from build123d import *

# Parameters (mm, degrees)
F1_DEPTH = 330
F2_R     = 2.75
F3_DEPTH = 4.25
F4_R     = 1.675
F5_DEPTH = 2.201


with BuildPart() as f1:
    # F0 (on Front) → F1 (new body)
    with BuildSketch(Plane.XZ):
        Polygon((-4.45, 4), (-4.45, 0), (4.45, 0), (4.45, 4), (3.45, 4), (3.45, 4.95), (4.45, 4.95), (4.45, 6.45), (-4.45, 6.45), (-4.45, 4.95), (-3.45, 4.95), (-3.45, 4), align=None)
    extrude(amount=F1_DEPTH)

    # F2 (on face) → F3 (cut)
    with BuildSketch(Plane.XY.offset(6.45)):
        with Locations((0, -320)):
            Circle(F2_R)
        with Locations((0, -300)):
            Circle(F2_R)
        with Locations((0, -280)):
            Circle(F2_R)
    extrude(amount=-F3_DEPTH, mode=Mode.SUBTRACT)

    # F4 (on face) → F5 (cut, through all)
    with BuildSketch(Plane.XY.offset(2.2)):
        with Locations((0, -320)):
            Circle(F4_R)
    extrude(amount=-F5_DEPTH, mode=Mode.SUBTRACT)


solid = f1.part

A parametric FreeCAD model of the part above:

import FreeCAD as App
import Part
import Sketcher
Q = App.Units.Quantity


def add_polygon(sketch, points):
    """Adds a closed chain of lines whose ends are joined by coincident constraints."""
    first, n = sketch.GeometryCount, len(points)
    for a, b in zip(points, points[1:] + points[:1]):
        sketch.addGeometry(Part.LineSegment(App.Vector(*a, 0), App.Vector(*b, 0)), False)
    for i in range(n):
        sketch.addConstraint(Sketcher.Constraint("Coincident", first + i, 2, first + (i + 1) % n, 1))

doc = App.newDocument("Part")
body = doc.addObject("PartDesign::Body", "Body")

# Sketch on XZ plane
sketch1 = doc.addObject("Sketcher::SketchObject", "Sketch")
body.addObject(sketch1)
sketch1.AttachmentSupport = (doc.XZ_Plane, [""])
sketch1.MapMode = "FlatFace"
add_polygon(sketch1, [(-4.5, 4), (-4.5, 0), (4.5, 0), (4.5, 4), (3.5, 4), (3.5, 5), (4.5, 5), (4.5, 6.5), (-4.5, 6.5), (-4.5, 5), (-3.5, 5), (-3.5, 4)])  # lines 0-11
sketch1.addConstraint([
    Sketcher.Constraint("Vertical", 0),
    Sketcher.Constraint("Horizontal", 1),
    Sketcher.Constraint("Vertical", 2),
    Sketcher.Constraint("Horizontal", 3),
    Sketcher.Constraint("Vertical", 4),
    Sketcher.Constraint("Horizontal", 5),
    Sketcher.Constraint("Vertical", 6),
    Sketcher.Constraint("Horizontal", 7),
    Sketcher.Constraint("Vertical", 8),
    Sketcher.Constraint("Horizontal", 9),
    Sketcher.Constraint("Vertical", 10),
    Sketcher.Constraint("Horizontal", 11),
    Sketcher.Constraint("Symmetric", 0, 2, 1, 2, -1, 1),
    Sketcher.Constraint("Symmetric", 5, 2, 8, 2, -2),
    Sketcher.Constraint("Symmetric", 3, 2, 10, 2, -2),
    Sketcher.Constraint("Vertical", 2, 2, 5, 2),
    Sketcher.Constraint("DistanceX", 3, 2, 3, 1, Q("1 mm")),
    Sketcher.Constraint("DistanceY", 0, 2, 0, 1, Q("4 mm")),
    Sketcher.Constraint("DistanceX", 1, 1, 1, 2, Q("8.9 mm")),
    Sketcher.Constraint("DistanceY", 6, 1, 6, 2, Q("1.5 mm")),
    Sketcher.Constraint("DistanceY", 4, 1, 4, 2, Q("0.95 mm")),
])
pad1 = doc.addObject("PartDesign::Pad", "Pad")
body.addObject(pad1)
pad1.Profile = sketch1
pad1.Length = 330

# Sketch on XY plane
sketch2 = doc.addObject("Sketcher::SketchObject", "Sketch001")
body.addObject(sketch2)
sketch2.AttachmentSupport = (doc.XY_Plane, [""])
sketch2.MapMode = "FlatFace"
sketch2.AttachmentOffset = App.Placement(App.Vector(0, 0, 6.45), App.Rotation())
sketch2.addGeometry([
    Part.Circle(App.Vector(0, -320, 0), App.Vector(0, 0, 1), 2.8),
    Part.Circle(App.Vector(0, -300, 0), App.Vector(0, 0, 1), 2.8),
    Part.Circle(App.Vector(0, -280, 0), App.Vector(0, 0, 1), 2.8),
], False)
sketch2.addConstraint([
    Sketcher.Constraint("Equal", 0, 1),
    Sketcher.Constraint("Equal", 1, 2),
    Sketcher.Constraint("PointOnObject", 0, 3, -2),
    Sketcher.Constraint("PointOnObject", 1, 3, -2),
    Sketcher.Constraint("PointOnObject", 2, 3, -2),
    Sketcher.Constraint("Diameter", 0, Q("5.5 mm")),
    Sketcher.Constraint("DistanceY", 0, 3, -1, 1, Q("320 mm")),
    Sketcher.Constraint("DistanceY", 1, 3, -1, 1, Q("300 mm")),
    Sketcher.Constraint("DistanceY", 2, 3, -1, 1, Q("280 mm")),
])
pocket1 = doc.addObject("PartDesign::Pocket", "Pocket")
body.addObject(pocket1)
pocket1.Profile = sketch2
pocket1.Length = 4.25

# Sketch on XY plane
sketch3 = doc.addObject("Sketcher::SketchObject", "Sketch002")
body.addObject(sketch3)
sketch3.AttachmentSupport = (doc.XY_Plane, [""])
sketch3.MapMode = "FlatFace"
sketch3.AttachmentOffset = App.Placement(App.Vector(0, 0, 2.2), App.Rotation())
sketch3.addGeometry(Part.Circle(App.Vector(0, -320, 0), App.Vector(0, 0, 1), 1.7), False)
sketch3.addConstraint([
    Sketcher.Constraint("PointOnObject", 0, 3, -2),
    Sketcher.Constraint("Diameter", 0, Q("3.35 mm")),
    Sketcher.Constraint("DistanceY", 0, 3, -1, 1, Q("320 mm")),
])
pocket2 = doc.addObject("PartDesign::Pocket", "Pocket001")
body.addObject(pocket2)
pocket2.Profile = sketch3
pocket2.Type = "ThroughAll"

doc.recompute()
